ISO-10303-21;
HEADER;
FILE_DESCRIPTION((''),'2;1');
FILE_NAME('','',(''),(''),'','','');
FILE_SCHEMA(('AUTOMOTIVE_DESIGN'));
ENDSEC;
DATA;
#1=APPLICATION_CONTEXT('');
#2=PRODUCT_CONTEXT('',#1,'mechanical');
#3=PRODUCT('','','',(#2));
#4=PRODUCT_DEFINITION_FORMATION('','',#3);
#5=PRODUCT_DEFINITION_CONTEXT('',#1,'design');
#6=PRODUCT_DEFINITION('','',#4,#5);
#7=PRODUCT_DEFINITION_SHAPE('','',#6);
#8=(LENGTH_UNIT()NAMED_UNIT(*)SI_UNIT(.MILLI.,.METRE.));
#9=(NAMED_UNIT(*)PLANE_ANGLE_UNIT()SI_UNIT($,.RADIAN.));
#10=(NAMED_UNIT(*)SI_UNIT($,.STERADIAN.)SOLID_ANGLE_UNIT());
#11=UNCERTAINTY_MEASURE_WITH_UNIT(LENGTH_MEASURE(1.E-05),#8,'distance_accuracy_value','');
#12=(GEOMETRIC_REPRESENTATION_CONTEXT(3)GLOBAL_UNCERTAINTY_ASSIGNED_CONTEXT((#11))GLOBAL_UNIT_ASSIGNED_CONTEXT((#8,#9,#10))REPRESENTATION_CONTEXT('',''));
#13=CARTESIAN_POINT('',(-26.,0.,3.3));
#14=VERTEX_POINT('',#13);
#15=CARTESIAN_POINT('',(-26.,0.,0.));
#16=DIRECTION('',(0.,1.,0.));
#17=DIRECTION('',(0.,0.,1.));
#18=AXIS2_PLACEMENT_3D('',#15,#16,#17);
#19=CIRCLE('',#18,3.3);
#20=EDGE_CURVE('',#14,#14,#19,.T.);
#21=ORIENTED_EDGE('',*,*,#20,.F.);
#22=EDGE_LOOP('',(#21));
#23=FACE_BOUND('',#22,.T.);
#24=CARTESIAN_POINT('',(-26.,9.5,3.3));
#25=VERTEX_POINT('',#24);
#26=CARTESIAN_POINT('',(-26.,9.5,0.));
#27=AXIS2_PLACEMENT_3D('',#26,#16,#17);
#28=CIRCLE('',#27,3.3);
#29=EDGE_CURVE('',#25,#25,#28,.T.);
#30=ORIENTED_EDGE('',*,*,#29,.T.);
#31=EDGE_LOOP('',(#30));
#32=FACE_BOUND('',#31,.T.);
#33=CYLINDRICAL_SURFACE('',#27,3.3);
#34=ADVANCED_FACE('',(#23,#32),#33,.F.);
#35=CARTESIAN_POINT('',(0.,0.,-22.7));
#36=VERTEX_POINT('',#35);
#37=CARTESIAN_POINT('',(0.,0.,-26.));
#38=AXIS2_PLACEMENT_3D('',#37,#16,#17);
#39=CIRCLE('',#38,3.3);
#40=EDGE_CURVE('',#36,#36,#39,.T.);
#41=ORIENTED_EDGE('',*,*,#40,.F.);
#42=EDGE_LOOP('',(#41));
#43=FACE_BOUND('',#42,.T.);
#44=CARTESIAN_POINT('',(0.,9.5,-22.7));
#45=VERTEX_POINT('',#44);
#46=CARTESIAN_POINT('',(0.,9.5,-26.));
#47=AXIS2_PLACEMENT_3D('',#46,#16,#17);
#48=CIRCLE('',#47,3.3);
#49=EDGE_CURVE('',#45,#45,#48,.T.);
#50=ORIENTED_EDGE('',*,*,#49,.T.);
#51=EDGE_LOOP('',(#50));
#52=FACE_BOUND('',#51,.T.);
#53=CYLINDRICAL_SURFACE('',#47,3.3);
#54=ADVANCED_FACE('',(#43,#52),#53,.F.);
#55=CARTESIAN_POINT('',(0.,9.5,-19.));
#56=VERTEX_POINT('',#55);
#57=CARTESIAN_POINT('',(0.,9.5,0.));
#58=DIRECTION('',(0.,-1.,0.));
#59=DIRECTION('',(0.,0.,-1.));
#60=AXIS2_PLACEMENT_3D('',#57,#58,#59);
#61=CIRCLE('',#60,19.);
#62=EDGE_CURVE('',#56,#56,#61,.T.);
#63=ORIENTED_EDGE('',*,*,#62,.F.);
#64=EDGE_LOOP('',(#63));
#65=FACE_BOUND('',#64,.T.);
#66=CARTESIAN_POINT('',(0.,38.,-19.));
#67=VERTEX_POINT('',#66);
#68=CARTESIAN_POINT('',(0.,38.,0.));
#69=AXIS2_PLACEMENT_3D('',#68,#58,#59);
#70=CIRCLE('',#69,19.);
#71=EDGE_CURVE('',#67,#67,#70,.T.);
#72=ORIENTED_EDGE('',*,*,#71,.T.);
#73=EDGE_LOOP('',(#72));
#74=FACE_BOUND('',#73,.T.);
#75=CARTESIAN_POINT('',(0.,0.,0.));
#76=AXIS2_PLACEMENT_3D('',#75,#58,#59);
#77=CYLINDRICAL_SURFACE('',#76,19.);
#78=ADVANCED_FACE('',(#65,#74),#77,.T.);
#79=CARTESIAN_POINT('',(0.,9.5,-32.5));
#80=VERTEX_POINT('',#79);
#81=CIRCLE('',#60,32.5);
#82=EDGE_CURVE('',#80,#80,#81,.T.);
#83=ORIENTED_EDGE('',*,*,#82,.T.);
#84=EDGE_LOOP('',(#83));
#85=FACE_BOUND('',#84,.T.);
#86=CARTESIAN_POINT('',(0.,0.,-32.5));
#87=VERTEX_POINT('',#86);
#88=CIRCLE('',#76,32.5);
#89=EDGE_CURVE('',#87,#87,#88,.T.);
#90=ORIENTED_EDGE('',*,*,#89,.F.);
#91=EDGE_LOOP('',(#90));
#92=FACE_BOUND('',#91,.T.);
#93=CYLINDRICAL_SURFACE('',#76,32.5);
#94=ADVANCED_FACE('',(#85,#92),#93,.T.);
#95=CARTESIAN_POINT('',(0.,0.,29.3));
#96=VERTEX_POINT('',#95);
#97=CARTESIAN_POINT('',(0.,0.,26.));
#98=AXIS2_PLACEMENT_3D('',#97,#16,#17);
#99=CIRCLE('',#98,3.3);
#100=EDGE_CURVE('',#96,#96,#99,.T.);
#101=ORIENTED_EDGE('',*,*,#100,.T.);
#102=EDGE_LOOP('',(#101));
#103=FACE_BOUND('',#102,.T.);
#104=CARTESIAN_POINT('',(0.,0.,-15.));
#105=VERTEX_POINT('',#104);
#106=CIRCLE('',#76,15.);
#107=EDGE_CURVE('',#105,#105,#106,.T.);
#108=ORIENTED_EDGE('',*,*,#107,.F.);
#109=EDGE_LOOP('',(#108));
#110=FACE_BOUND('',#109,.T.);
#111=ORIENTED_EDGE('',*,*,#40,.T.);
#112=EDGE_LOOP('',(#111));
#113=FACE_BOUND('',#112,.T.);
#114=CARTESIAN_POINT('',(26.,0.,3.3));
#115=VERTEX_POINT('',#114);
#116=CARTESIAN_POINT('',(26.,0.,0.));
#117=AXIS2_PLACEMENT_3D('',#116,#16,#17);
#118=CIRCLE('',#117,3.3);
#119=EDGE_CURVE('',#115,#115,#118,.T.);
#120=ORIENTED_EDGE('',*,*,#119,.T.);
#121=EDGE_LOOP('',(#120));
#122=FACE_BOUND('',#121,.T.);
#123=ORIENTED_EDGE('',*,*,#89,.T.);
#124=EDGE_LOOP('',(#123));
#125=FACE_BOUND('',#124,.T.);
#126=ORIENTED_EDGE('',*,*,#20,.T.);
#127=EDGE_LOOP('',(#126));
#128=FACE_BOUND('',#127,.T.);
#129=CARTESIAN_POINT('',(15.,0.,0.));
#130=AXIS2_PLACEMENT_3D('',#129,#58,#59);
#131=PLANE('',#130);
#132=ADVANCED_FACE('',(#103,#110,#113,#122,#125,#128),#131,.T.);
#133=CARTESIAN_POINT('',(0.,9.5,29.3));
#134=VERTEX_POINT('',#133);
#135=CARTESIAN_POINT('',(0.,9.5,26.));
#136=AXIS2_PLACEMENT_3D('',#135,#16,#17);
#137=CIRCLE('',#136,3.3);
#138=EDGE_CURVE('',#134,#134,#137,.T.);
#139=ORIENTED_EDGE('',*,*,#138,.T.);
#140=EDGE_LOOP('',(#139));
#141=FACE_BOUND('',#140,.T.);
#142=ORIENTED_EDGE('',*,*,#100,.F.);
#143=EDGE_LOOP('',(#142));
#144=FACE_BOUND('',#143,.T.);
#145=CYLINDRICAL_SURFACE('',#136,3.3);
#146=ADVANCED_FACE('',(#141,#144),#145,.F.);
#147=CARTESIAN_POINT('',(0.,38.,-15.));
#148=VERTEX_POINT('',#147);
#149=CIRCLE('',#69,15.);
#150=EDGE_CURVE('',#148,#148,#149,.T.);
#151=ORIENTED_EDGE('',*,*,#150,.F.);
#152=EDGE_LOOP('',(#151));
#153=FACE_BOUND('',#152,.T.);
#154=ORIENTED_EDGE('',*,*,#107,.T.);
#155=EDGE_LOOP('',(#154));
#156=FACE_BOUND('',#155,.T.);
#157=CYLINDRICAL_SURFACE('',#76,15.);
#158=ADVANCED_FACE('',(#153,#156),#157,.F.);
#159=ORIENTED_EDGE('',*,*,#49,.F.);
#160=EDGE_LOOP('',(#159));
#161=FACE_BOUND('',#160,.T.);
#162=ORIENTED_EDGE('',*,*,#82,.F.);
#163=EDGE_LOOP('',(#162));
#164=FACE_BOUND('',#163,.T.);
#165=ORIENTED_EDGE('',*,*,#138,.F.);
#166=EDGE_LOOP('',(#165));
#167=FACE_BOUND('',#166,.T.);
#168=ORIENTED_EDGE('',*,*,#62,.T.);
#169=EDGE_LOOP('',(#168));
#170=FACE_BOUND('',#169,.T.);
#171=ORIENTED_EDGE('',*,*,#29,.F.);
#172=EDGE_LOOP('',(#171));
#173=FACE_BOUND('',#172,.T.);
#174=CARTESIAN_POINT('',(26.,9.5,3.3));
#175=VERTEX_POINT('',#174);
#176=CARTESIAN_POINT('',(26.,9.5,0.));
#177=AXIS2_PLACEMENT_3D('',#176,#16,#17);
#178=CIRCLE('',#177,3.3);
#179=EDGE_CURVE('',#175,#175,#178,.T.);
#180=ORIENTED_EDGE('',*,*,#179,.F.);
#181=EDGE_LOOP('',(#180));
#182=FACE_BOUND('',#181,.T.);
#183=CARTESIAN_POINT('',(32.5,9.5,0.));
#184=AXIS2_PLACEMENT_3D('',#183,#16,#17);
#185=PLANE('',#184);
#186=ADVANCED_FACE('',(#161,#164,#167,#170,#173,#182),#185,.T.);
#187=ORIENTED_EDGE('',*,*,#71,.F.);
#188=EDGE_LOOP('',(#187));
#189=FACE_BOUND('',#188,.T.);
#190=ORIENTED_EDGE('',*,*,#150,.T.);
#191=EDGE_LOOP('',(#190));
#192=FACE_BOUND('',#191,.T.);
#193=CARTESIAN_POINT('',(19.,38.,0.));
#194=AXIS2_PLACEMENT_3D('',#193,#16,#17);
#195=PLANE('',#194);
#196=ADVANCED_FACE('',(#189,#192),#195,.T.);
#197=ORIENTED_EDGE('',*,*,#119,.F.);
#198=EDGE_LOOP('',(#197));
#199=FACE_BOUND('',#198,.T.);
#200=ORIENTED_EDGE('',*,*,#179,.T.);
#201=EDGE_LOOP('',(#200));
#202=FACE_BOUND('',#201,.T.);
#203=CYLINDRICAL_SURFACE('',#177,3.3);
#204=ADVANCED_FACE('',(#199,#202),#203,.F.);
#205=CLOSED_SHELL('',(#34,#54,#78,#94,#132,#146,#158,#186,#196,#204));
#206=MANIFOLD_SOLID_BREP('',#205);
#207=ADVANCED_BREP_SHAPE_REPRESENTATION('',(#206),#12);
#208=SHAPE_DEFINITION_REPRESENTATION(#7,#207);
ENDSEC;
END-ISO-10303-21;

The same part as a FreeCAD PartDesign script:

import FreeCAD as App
import Part
import Sketcher
Q = App.Units.Quantity

doc = App.newDocument("Part")
body = doc.addObject("PartDesign::Body", "Body")

# Sketch on XY plane
sketch1 = body.newObject("Sketcher::SketchObject", "Sketch")
sketch1.AttachmentSupport = (doc.getObject("XY_Plane"), [""])
sketch1.MapMode = "FlatFace"
sketch1.addGeometry([
    Part.LineSegment(App.Vector(15, 38, 0), App.Vector(15, 0, 0)),  # 0
    Part.LineSegment(App.Vector(15, 0, 0), App.Vector(32.5, 0, 0)),  # 1
    Part.LineSegment(App.Vector(32.5, 0, 0), App.Vector(32.5, 9.5, 0)),  # 2
    Part.LineSegment(App.Vector(32.5, 9.5, 0), App.Vector(19, 9.5, 0)),  # 3
    Part.LineSegment(App.Vector(19, 9.5, 0), App.Vector(19, 38, 0)),  # 4
    Part.LineSegment(App.Vector(19, 38, 0), App.Vector(15, 38, 0)),  # 5
], False)
sketch1.addConstraint([
    Sketcher.Constraint("Coincident", 0, 2, 1, 1),
    Sketcher.Constraint("Coincident", 1, 2, 2, 1),
    Sketcher.Constraint("Coincident", 2, 2, 3, 1),
    Sketcher.Constraint("Coincident", 3, 2, 4, 1),
    Sketcher.Constraint("Coincident", 4, 2, 5, 1),
    Sketcher.Constraint("Coincident", 5, 2, 0, 1),
    Sketcher.Constraint("Vertical", 0),
    Sketcher.Constraint("Horizontal", 1),
    Sketcher.Constraint("Vertical", 2),
    Sketcher.Constraint("Horizontal", 3),
    Sketcher.Constraint("Vertical", 4),
    Sketcher.Constraint("Horizontal", 5),
    Sketcher.Constraint("PointOnObject", 0, 2, -1),
    Sketcher.Constraint("DistanceX", 5, 2, 5, 1, Q("4 mm")),
    Sketcher.Constraint("DistanceY", 0, 2, 0, 1, Q("38 mm")),
    Sketcher.Constraint("DistanceX", 1, 1, 1, 2, Q("17.5 mm")),
    Sketcher.Constraint("DistanceY", 2, 1, 2, 2, Q("9.5 mm")),
    Sketcher.Constraint("DistanceX", -1, 1, 0, 2, Q("15 mm")),
])
revolution = body.newObject("PartDesign::Revolution", "Revolution")
revolution.Profile = sketch1
revolution.ReferenceAxis = (sketch1, ["V_Axis"])
revolution.Angle = 360

# Sketch on XZ plane
sketch2 = body.newObject("Sketcher::SketchObject", "Sketch001")
sketch2.AttachmentSupport = (doc.getObject("XZ_Plane"), [""])
sketch2.MapMode = "FlatFace"
sketch2.AttachmentOffset = App.Placement(App.Vector(0, 0, -9.5), App.Rotation())
sketch2.addGeometry([
    Part.Circle(App.Vector(0, -26, 0), App.Vector(0, 0, 1), 3.3),
    Part.Circle(App.Vector(0, 26, 0), App.Vector(0, 0, 1), 3.3),
    Part.Circle(App.Vector(26, 0, 0), App.Vector(0, 0, 1), 3.3),
    Part.Circle(App.Vector(-26, 0, 0), App.Vector(0, 0, 1), 3.3),
], False)
sketch2.addConstraint([
    Sketcher.Constraint("Equal", 0, 1),
    Sketcher.Constraint("Equal", 1, 2),
    Sketcher.Constraint("Equal", 2, 3),
    Sketcher.Constraint("Symmetric", 0, 3, 1, 3, -1, 1),
    Sketcher.Constraint("Symmetric", 2, 3, 3, 3, -1, 1),
    Sketcher.Constraint("PointOnObject", 0, 3, -2),
    Sketcher.Constraint("PointOnObject", 2, 3, -1),
    Sketcher.Constraint("Diameter", 0, Q("6.6 mm")),
    Sketcher.Constraint("DistanceY", 0, 3, -1, 1, Q("26 mm")),
    Sketcher.Constraint("DistanceX", -1, 1, 2, 3, Q("26 mm")),
])
doc.recompute()
hole = body.newObject("PartDesign::Hole", "Hole")
hole.Profile = sketch2
hole.ThreadType = "None"
hole.Diameter = 6.6
hole.DepthType = "ThroughAll"
hole.Reversed = True

doc.recompute()
